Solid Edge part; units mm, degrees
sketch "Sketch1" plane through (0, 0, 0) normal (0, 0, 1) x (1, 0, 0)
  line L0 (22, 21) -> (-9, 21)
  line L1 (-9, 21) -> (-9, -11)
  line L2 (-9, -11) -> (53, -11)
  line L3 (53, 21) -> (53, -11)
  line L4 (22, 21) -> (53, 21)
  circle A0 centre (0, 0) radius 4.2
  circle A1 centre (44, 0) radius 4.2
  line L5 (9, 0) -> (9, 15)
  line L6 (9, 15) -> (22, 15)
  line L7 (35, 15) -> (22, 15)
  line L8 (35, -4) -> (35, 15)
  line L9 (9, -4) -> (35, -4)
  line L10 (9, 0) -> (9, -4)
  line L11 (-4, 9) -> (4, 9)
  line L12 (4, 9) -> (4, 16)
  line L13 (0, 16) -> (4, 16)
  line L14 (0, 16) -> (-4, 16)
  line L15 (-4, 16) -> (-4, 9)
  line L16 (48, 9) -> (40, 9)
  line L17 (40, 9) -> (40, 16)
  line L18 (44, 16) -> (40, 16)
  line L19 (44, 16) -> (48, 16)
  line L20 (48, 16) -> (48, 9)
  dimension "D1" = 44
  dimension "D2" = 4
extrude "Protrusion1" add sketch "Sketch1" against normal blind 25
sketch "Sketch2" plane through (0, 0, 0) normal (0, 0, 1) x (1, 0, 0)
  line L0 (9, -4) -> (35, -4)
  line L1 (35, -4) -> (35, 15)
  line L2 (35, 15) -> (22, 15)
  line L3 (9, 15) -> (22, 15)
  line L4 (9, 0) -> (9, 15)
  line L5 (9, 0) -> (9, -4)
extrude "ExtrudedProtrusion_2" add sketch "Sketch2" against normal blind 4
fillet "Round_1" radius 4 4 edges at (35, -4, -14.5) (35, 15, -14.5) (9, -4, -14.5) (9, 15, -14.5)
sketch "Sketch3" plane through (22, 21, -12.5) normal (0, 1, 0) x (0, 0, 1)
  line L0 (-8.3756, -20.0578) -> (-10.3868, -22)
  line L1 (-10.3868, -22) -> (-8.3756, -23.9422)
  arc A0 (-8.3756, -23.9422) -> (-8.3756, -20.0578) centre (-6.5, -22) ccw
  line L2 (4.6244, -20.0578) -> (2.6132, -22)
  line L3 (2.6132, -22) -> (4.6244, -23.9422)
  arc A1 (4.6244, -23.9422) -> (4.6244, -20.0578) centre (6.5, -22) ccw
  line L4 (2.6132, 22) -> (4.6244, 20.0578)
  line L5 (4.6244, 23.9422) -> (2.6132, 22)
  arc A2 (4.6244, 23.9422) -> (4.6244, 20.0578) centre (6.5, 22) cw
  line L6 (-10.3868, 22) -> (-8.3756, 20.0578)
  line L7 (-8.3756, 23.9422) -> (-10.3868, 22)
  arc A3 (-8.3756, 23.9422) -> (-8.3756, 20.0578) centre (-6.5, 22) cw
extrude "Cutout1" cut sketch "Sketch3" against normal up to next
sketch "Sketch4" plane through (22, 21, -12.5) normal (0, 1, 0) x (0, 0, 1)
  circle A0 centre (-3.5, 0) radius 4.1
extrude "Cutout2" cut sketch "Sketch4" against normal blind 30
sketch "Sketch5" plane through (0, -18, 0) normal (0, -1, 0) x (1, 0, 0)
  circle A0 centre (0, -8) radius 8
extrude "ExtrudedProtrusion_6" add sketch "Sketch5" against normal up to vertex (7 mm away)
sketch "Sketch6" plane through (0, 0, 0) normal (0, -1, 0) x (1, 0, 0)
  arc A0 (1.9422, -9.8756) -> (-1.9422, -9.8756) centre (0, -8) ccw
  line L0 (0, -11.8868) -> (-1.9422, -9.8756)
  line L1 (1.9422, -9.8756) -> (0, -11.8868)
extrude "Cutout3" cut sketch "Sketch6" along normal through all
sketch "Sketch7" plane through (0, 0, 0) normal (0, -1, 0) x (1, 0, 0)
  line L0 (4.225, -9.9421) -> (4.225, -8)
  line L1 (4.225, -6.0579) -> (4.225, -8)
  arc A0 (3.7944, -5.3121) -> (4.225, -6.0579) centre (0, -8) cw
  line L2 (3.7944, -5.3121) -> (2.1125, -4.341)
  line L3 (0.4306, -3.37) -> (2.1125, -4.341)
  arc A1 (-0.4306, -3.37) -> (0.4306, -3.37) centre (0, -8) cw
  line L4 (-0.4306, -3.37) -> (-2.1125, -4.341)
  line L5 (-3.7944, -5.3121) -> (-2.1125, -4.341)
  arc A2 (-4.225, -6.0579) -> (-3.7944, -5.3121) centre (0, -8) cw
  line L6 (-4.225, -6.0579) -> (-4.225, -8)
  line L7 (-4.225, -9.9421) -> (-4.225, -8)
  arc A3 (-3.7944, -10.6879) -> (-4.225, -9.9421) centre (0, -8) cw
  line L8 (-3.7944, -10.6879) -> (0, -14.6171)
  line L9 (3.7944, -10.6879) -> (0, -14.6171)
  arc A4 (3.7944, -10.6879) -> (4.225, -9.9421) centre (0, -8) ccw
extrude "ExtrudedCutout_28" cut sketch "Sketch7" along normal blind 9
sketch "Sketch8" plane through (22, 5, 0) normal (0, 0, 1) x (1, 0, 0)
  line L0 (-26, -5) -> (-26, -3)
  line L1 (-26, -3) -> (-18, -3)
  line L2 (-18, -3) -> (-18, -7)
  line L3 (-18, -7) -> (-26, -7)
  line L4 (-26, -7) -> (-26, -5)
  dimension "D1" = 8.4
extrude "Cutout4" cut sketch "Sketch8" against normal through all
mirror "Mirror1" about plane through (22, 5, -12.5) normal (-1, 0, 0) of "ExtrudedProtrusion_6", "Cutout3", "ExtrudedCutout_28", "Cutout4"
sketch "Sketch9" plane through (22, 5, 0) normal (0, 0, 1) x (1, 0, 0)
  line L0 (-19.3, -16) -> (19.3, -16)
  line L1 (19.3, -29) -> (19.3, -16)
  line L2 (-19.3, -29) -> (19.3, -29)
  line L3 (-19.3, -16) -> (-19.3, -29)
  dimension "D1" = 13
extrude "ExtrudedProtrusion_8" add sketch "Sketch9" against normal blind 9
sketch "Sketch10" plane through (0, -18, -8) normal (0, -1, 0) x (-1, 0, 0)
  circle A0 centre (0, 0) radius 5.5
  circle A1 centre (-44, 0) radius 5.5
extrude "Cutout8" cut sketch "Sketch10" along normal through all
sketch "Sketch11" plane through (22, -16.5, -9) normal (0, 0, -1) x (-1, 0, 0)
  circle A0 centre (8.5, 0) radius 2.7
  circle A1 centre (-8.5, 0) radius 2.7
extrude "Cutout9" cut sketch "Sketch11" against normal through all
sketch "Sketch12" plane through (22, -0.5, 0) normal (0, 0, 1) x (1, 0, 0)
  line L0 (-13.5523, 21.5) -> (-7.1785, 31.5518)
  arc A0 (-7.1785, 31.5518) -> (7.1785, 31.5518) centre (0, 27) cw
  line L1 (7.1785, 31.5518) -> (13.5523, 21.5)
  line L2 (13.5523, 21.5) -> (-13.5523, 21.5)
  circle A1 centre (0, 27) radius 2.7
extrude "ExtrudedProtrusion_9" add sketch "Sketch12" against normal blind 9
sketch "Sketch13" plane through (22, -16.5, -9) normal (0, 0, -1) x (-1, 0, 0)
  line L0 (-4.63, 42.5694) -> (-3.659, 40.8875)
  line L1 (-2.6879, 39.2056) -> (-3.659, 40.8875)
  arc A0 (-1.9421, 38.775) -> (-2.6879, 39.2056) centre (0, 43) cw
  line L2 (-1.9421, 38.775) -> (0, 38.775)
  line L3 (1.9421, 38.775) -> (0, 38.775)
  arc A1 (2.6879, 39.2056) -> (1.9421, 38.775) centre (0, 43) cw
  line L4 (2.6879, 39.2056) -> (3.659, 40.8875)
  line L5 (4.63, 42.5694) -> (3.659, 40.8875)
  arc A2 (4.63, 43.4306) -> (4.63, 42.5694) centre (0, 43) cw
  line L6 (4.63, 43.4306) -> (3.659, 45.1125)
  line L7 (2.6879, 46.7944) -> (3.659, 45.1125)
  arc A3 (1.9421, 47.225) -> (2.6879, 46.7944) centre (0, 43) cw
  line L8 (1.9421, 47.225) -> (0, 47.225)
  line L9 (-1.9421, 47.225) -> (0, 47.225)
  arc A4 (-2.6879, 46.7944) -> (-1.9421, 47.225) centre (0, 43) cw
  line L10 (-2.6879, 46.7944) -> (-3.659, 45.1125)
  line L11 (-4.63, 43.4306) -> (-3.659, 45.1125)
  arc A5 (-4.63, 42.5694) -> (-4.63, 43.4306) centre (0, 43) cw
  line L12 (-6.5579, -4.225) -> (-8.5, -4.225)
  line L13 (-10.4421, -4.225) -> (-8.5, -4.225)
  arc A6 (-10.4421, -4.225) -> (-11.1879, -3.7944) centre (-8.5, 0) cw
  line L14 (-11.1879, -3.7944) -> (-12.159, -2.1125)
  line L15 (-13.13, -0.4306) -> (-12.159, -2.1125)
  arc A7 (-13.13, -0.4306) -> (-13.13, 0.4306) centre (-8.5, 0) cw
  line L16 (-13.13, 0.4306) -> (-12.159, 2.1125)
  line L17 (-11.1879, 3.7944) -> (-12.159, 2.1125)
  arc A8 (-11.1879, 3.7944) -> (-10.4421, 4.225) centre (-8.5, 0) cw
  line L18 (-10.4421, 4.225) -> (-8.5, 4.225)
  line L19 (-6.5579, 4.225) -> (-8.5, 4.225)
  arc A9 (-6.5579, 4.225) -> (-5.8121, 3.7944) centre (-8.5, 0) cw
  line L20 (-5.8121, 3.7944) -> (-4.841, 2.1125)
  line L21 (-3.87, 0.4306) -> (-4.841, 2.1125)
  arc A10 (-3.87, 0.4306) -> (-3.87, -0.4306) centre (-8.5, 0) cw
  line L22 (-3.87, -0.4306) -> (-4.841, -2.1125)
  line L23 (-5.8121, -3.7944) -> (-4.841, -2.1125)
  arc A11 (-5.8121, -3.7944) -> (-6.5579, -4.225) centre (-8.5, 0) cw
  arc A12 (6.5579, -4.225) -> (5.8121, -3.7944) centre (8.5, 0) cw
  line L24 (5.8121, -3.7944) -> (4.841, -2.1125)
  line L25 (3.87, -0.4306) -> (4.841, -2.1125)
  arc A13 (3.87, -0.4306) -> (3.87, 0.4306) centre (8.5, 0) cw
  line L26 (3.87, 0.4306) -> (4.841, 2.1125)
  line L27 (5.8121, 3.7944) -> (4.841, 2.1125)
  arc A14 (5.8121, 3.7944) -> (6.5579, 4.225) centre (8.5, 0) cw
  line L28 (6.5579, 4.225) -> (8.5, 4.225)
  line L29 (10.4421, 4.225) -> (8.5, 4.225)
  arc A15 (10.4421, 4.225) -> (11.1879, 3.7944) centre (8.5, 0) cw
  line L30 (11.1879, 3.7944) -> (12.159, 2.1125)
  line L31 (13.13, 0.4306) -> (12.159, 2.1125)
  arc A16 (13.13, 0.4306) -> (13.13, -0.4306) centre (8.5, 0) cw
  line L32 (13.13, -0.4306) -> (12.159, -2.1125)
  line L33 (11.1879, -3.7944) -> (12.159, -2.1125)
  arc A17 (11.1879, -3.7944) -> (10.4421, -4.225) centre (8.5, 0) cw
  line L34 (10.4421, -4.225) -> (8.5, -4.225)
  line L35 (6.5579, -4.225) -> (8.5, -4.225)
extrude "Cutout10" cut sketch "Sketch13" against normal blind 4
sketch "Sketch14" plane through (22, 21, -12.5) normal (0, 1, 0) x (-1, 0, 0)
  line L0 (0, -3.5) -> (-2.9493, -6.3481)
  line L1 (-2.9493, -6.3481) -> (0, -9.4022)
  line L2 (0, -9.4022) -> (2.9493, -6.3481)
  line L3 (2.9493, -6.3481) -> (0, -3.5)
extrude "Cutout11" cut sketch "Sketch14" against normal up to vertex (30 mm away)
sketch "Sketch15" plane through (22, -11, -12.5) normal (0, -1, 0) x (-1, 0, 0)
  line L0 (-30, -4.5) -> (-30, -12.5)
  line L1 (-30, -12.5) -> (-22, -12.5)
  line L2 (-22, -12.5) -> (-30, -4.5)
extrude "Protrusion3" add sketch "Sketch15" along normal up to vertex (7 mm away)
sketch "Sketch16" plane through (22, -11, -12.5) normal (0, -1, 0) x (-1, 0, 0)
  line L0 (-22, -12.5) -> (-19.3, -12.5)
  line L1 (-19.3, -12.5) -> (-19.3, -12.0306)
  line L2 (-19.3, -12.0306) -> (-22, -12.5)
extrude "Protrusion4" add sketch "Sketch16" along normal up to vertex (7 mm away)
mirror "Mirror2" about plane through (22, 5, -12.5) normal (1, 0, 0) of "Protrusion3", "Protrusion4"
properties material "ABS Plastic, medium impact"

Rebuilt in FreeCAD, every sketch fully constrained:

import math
import FreeCAD as App
import Part
import Sketcher
from FreeCAD import Vector
Q = App.Units.Quantity


def edges_at(feature, points):
    """Names of the edges that pass closest to the given points."""
    edges = feature.Shape.Edges
    near = lambda p: min(range(len(edges)), key=lambda i: edges[i].distToShape(Part.Vertex(*p))[0])
    return sorted({f"Edge{near(p) + 1}" for p in points})


def add_polygon(sketch, points):
    """Adds a closed chain of lines whose ends are joined by coincident constraints."""
    first, n = sketch.GeometryCount, len(points)
    for a, b in zip(points, points[1:] + points[:1]):
        sketch.addGeometry(Part.LineSegment(App.Vector(*a, 0), App.Vector(*b, 0)), False)
    for i in range(n):
        sketch.addConstraint(Sketcher.Constraint("Coincident", first + i, 2, first + (i + 1) % n, 1))

doc = App.newDocument("Part")
body = doc.addObject("PartDesign::Body", "Body")

sketch1 = body.newObject("Sketcher::SketchObject", "Sketch")
sketch1.AttachmentSupport = (doc.getObject("XY_Plane"), [""])
sketch1.MapMode = "FlatFace"
add_polygon(sketch1, [(53, 21), (-9, 21), (-9, -11), (53, -11)])
sketch1.addGeometry(Part.Circle(Vector(0, 0, 0), Vector(0, 0, 1), 4.2), False)
sketch1.addGeometry(Part.Circle(Vector(44, 0, 0), Vector(0, 0, 1), 4.2), False)
add_polygon(sketch1, [(4, 9), (-4, 9), (-4, 16), (4, 16)])
add_polygon(sketch1, [(9, -4), (9, 15), (35, 15), (35, -4)])
add_polygon(sketch1, [(48, 16), (48, 9), (40, 9), (40, 16)])
sketch1.addConstraint([
    Sketcher.Constraint("Horizontal", 0),
    Sketcher.Constraint("Vertical", 1),
    Sketcher.Constraint("Horizontal", 2),
    Sketcher.Constraint("Vertical", 3),
    Sketcher.Constraint("Horizontal", 6),
    Sketcher.Constraint("Vertical", 7),
    Sketcher.Constraint("Horizontal", 8),
    Sketcher.Constraint("Vertical", 9),
    Sketcher.Constraint("Vertical", 10),
    Sketcher.Constraint("Horizontal", 11),
    Sketcher.Constraint("Vertical", 12),
    Sketcher.Constraint("Horizontal", 13),
    Sketcher.Constraint("Vertical", 14),
    Sketcher.Constraint("Horizontal", 15),
    Sketcher.Constraint("Vertical", 16),
    Sketcher.Constraint("Horizontal", 17),
    Sketcher.Constraint("Coincident", 4, 3, -1, 1),
    Sketcher.Constraint("Equal", 4, 5),
    Sketcher.Constraint("PointOnObject", 5, 3, -1),
    Sketcher.Constraint("Horizontal", 9, 2, 14, 2),
    Sketcher.Constraint("Horizontal", 8, 2, 16, 2),
    Sketcher.Constraint("Equal", 8, 15),
    Sketcher.Constraint("Diameter", 4, 8.4),
    Sketcher.Constraint("DistanceX", 0, 2, 0, 1, 62.0),
    Sketcher.Constraint("DistanceX", 6, 2, 6, 1, 8.0),
    Sketcher.Constraint("DistanceX", 11, 1, 11, 2, 26.0),
    Sketcher.Constraint("DistanceY", 1, 2, 1, 1, 32.0),
    Sketcher.Constraint("DistanceY", 7, 1, 7, 2, 7.0),
    Sketcher.Constraint("DistanceY", 10, 1, 10, 2, 19.0),
    Sketcher.Constraint("DistanceX", -1, 1, 5, 3, 44.0),
    Sketcher.Constraint("DistanceX", 0, 2, -1, 1, 9.0),
    Sketcher.Constraint("DistanceY", -1, 1, 0, 2, 21.0),
    Sketcher.Constraint("DistanceX", 6, 2, -1, 1, 4.0),
    Sketcher.Constraint("DistanceY", -1, 1, 6, 2, 9.0),
    Sketcher.Constraint("DistanceX", -1, 1, 10, 2, 9.0),
    Sketcher.Constraint("DistanceY", -1, 1, 10, 2, 15.0),
    Sketcher.Constraint("DistanceX", -1, 1, 14, 2, 48.0),
])
pad1 = body.newObject("PartDesign::Pad", "Pad")
pad1.Profile = sketch1
pad1.Length = 25
pad1.Reversed = True

sketch2 = body.newObject("Sketcher::SketchObject", "Sketch001")
sketch2.AttachmentSupport = (doc.getObject("XY_Plane"), [""])
sketch2.MapMode = "FlatFace"
add_polygon(sketch2, [(9, 15), (9, -4), (35, -4), (35, 15)])
sketch2.addConstraint([
    Sketcher.Constraint("Vertical", 0),
    Sketcher.Constraint("Horizontal", 1),
    Sketcher.Constraint("Vertical", 2),
    Sketcher.Constraint("Horizontal", 3),
    Sketcher.Constraint("DistanceX", 1, 1, 1, 2, 26.0),
    Sketcher.Constraint("DistanceY", 0, 2, 0, 1, 19.0),
    Sketcher.Constraint("DistanceX", -1, 1, 0, 2, 9.0),
    Sketcher.Constraint("DistanceY", 0, 2, -1, 1, 4.0),
])
pad2 = body.newObject("PartDesign::Pad", "Pad001")
pad2.Profile = sketch2
pad2.Length = 4
pad2.Reversed = True
doc.recompute()

fillet = body.newObject("PartDesign::Fillet", "Fillet")
fillet.Base = (pad2, edges_at(pad2, [
    (35, -4, -14.5),
    (35, 15, -14.5),
    (9, -4, -14.5),
    (9, 15, -14.5),
]))
fillet.Radius = 4

sketch3 = body.newObject("Sketcher::SketchObject", "Sketch002")
sketch3.AttachmentSupport = (doc.getObject("XZ_Plane"), [""])
sketch3.MapMode = "FlatFace"
sketch3.AttachmentOffset = App.Placement(Vector(0, 0, -21), App.Rotation())
sketch3.addGeometry([
    Part.ArcOfCircle(Part.Circle(Vector(0, -19, 0), Vector(0, 0, 1), 2.700003), math.radians(-44.000599), math.radians(224.000599)),
    Part.LineSegment(Vector(1.9422, -20.8756, 0), Vector(0, -22.8868, 0)),
    Part.LineSegment(Vector(0, -22.8868, 0), Vector(-1.9422, -20.8756, 0)),
    Part.ArcOfCircle(Part.Circle(Vector(0, -6, 0), Vector(0, 0, 1), 2.700003), math.radians(-44.000599), math.radians(224.000599)),
    Part.LineSegment(Vector(1.9422, -7.8756, 0), Vector(0, -9.8868, 0)),
    Part.LineSegment(Vector(0, -9.8868, 0), Vector(-1.9422, -7.8756, 0)),
    Part.LineSegment(Vector(45.9422, -7.8756, 0), Vector(44, -9.8868, 0)),
    Part.LineSegment(Vector(44, -9.8868, 0), Vector(42.0578, -7.8756, 0)),
    Part.ArcOfCircle(Part.Circle(Vector(44, -6, 0), Vector(0, 0, 1), 2.700003), math.radians(-44.000599), math.radians(224.000599)),
    Part.LineSegment(Vector(45.9422, -20.8756, 0), Vector(44, -22.8868, 0)),
    Part.LineSegment(Vector(44, -22.8868, 0), Vector(42.0578, -20.8756, 0)),
    Part.ArcOfCircle(Part.Circle(Vector(44, -19, 0), Vector(0, 0, 1), 2.700003), math.radians(-44.000599), math.radians(224.000599)),
], False)
sketch3.addConstraint([
    Sketcher.Constraint("Tangent", 0, 1, 1, 1),
    Sketcher.Constraint("Coincident", 1, 2, 2, 1),
    Sketcher.Constraint("Tangent", 2, 2, 0, 2),
    Sketcher.Constraint("Tangent", 3, 1, 4, 1),
    Sketcher.Constraint("Coincident", 4, 2, 5, 1),
    Sketcher.Constraint("Tangent", 5, 2, 3, 2),
    Sketcher.Constraint("Coincident", 6, 2, 7, 1),
    Sketcher.Constraint("Tangent", 7, 2, 8, 2),
    Sketcher.Constraint("Tangent", 8, 1, 6, 1),
    Sketcher.Constraint("Coincident", 9, 2, 10, 1),
    Sketcher.Constraint("Tangent", 10, 2, 11, 2),
    Sketcher.Constraint("Tangent", 11, 1, 9, 1),
    Sketcher.Constraint("Equal", 0, 3),
    Sketcher.Constraint("Equal", 3, 8),
    Sketcher.Constraint("Equal", 8, 11),
    Sketcher.Constraint("Symmetric", 0, 1, 2, 2, -2),
    Sketcher.Constraint("Symmetric", 3, 1, 5, 2, -2),
    Sketcher.Constraint("Parallel", 1, 4),
    Sketcher.Constraint("Parallel", 4, 6),
    Sketcher.Constraint("Parallel", 5, 7),
    Sketcher.Constraint("Parallel", 6, 9),
    Sketcher.Constraint("Parallel", 7, 10),
    Sketcher.Constraint("Horizontal", 3, 3, 8, 3),
    Sketcher.Constraint("Horizontal", 0, 3, 11, 3),
    Sketcher.Constraint("Vertical", 8, 3, 11, 3),
    Sketcher.Constraint("Radius", 0, 2.7),
    Sketcher.Constraint("Angle", 1, Q("-134 deg")),
    Sketcher.Constraint("DistanceY", 0, 3, -1, 1, 19.0),
    Sketcher.Constraint("DistanceY", 3, 3, -1, 1, 6.0),
    Sketcher.Constraint("DistanceX", -1, 1, 8, 3, 44.0),
])
pocket1 = body.newObject("PartDesign::Pocket", "Pocket")
pocket1.Profile = sketch3
pocket1.Type = "UpToFirst"
pocket1.Reversed = True

sketch4 = body.newObject("Sketcher::SketchObject", "Sketch003")
sketch4.AttachmentSupport = (doc.getObject("XZ_Plane"), [""])
sketch4.MapMode = "FlatFace"
sketch4.AttachmentOffset = App.Placement(Vector(0, 0, -21), App.Rotation())
sketch4.addGeometry(Part.Circle(Vector(22, -16, 0), Vector(0, 0, 1), 4.1), False)
sketch4.addConstraint([
    Sketcher.Constraint("Diameter", 0, 8.2),
    Sketcher.Constraint("DistanceX", -1, 1, 0, 3, 22.0),
    Sketcher.Constraint("DistanceY", 0, 3, -1, 1, 16.0),
])
pocket2 = body.newObject("PartDesign::Pocket", "Pocket001")
pocket2.Profile = sketch4
pocket2.Length = 30
pocket2.Reversed = True

sketch5 = body.newObject("Sketcher::SketchObject", "Sketch004")
sketch5.AttachmentSupport = (doc.getObject("XZ_Plane"), [""])
sketch5.MapMode = "FlatFace"
sketch5.AttachmentOffset = App.Placement(Vector(0, 0, 18), App.Rotation())
sketch5.addGeometry(Part.Circle(Vector(0, -8, 0), Vector(0, 0, 1), 8), False)
sketch5.addConstraint([
    Sketcher.Constraint("PointOnObject", 0, 3, -2),
    Sketcher.Constraint("Diameter", 0, 16.0),
    Sketcher.Constraint("DistanceY", 0, 3, -1, 1, 8.0),
])
pad3 = body.newObject("PartDesign::Pad", "Pad002")
pad3.Profile = sketch5
pad3.Length = 7
pad3.Reversed = True

sketch6 = body.newObject("Sketcher::SketchObject", "Sketch005")
sketch6.AttachmentSupport = (doc.getObject("XZ_Plane"), [""])
sketch6.MapMode = "FlatFace"
sketch6.addGeometry([
    Part.LineSegment(Vector(0, -11.8868, 0), Vector(1.9422, -9.8756, 0)),
    Part.ArcOfCircle(Part.Circle(Vector(0, -8, 0), Vector(0, 0, 1), 2.700003), math.radians(-44.000599), math.radians(224.000599)),
    Part.LineSegment(Vector(-1.9422, -9.8756, 0), Vector(0, -11.8868, 0)),
], False)
sketch6.addConstraint([
    Sketcher.Constraint("Tangent", 0, 2, 1, 1),
    Sketcher.Constraint("Tangent", 1, 2, 2, 1),
    Sketcher.Constraint("Coincident", 2, 2, 0, 1),
    Sketcher.Constraint("Symmetric", 0, 2, 1, 2, -2),
    Sketcher.Constraint("Radius", 1, 2.7),
    Sketcher.Constraint("Angle", 0, Q("46 deg")),
    Sketcher.Constraint("DistanceY", 1, 3, -1, 1, 8.0),
])
pocket3 = body.newObject("PartDesign::Pocket", "Pocket002")
pocket3.Profile = sketch6
pocket3.Type = "ThroughAll"
pocket3.Reversed = True

sketch7 = body.newObject("Sketcher::SketchObject", "Sketch006")
sketch7.AttachmentSupport = (doc.getObject("XZ_Plane"), [""])
sketch7.MapMode = "FlatFace"
sketch7.addGeometry([
    Part.ArcOfCircle(Part.Circle(Vector(-0.001051, -7.999326, 0), Vector(0, 0, 1), 4.651223), math.radians(-35.312512), math.radians(-24.688891)),
    Part.LineSegment(Vector(4.225, -9.9421, 0), Vector(4.225, -6.0579, 0)),
    Part.ArcOfCircle(Part.Circle(Vector(-0.001051, -8.000674, 0), Vector(0, 0, 1), 4.651223), math.radians(24.688891), math.radians(35.312512)),
    Part.LineSegment(Vector(3.7944, -5.3121, 0), Vector(2.1125, -4.341, 0)),
    Part.LineSegment(Vector(2.1125, -4.341, 0), Vector(0.4306, -3.37, 0)),
    Part.ArcOfCircle(Part.Circle(Vector(0, -8, 0), Vector(0, 0, 1), 4.64998), math.radians(84.686653), math.radians(95.313347)),
    Part.LineSegment(Vector(-0.4306, -3.37, 0), Vector(-2.1125, -4.341, 0)),
    Part.LineSegment(Vector(-2.1125, -4.341, 0), Vector(-3.7944, -5.3121, 0)),
    Part.ArcOfCircle(Part.Circle(Vector(-0.001108, -7.999427, 0), Vector(0, 0, 1), 4.64874), math.radians(144.684643), math.radians(155.313954)),
    Part.LineSegment(Vector(-4.225, -6.0579, 0), Vector(-4.225, -9.9421, 0)),
    Part.ArcOfCircle(Part.Circle(Vector(0.001051, -7.999326, 0), Vector(0, 0, 1), 4.651223), math.radians(-155.311109), math.radians(-144.687488)),
    Part.LineSegment(Vector(-3.7944, -10.6879, 0), Vector(0, -14.6171, 0)),
    Part.LineSegment(Vector(0, -14.6171, 0), Vector(3.7944, -10.6879, 0)),
], False)
sketch7.addConstraint([
    Sketcher.Constraint("Coincident", 0, 2, 1, 1),
    Sketcher.Constraint("Coincident", 1, 2, 2, 1),
    Sketcher.Constraint("Coincident", 2, 2, 3, 1),
    Sketcher.Constraint("Coincident", 3, 2, 4, 1),
    Sketcher.Constraint("Coincident", 4, 2, 5, 1),
    Sketcher.Constraint("Coincident", 5, 2, 6, 1),
    Sketcher.Constraint("Coincident", 6, 2, 7, 1),
    Sketcher.Constraint("Coincident", 7, 2, 8, 1),
    Sketcher.Constraint("Coincident", 8, 2, 9, 1),
    Sketcher.Constraint("Coincident", 9, 2, 10, 1),
    Sketcher.Constraint("Coincident", 10, 2, 11, 1),
    Sketcher.Constraint("Coincident", 11, 2, 12, 1),
    Sketcher.Constraint("Coincident", 12, 2, 0, 1),
    Sketcher.Constraint("Vertical", 1),
    Sketcher.Constraint("Vertical", 9),
    Sketcher.Constraint("Coincident", 8, 3, 0, 3),
    Sketcher.Constraint("Equal", 0, 2),
    Sketcher.Constraint("Equal", 2, 10),
    Sketcher.Constraint("Symmetric", 0, 3, 10, 3, -2),
    Sketcher.Constraint("Symmetric", 4, 2, 5, 2, -2),
    Sketcher.Constraint("Symmetric", 3, 2, 6, 2, -2),
    Sketcher.Constraint("Symmetric", 2, 2, 7, 2, -2),
    Sketcher.Constraint("Symmetric", 1, 2, 8, 2, -2),
    Sketcher.Constraint("PointOnObject", 11, 2, -2),
    Sketcher.Constraint("Parallel", 3, 4),
    Sketcher.Constraint("Horizontal", 10, 2, 12, 2),
    Sketcher.Constraint("Vertical", 0, 3, 2, 3),
    Sketcher.Constraint("Vertical", 7, 2, 10, 2),
    Sketcher.Constraint("Equal", 3, 4),
    Sketcher.Constraint("Angle", 4, Q("150.0012 deg")),
    Sketcher.Constraint("Angle", 11, Q("-46 deg")),
    Sketcher.Constraint("Radius", 5, 4.65),
    Sketcher.Constraint("DistanceY", 5, 3, -1, 1, 8.0),
    Sketcher.Constraint("Radius", 0, 4.6512),
    Sketcher.Constraint("Radius", 8, 4.6487),
    Sketcher.Constraint("DistanceY", 4, 2, -1, 1, 3.37),
    Sketcher.Constraint("DistanceY", 0, 2, 2, 2, 4.63),
    Sketcher.Constraint("Distance", 3, 1.942),
])
pocket4 = body.newObject("PartDesign::Pocket", "Pocket003")
pocket4.Profile = sketch7
pocket4.Length = 9
pocket4.Reversed = True

sketch8 = body.newObject("Sketcher::SketchObject", "Sketch007")
sketch8.AttachmentSupport = (doc.getObject("XY_Plane"), [""])
sketch8.MapMode = "FlatFace"
add_polygon(sketch8, [(-4, 2), (-4, -2), (4, -2), (4, 2)])
sketch8.addConstraint([
    Sketcher.Constraint("Vertical", 0),
    Sketcher.Constraint("Horizontal", 1),
    Sketcher.Constraint("Vertical", 2),
    Sketcher.Constraint("Horizontal", 3),
    Sketcher.Constraint("Symmetric", 0, 2, 2, 2, -1, 1),
    Sketcher.Constraint("DistanceX", 1, 1, 1, 2, 8.0),
    Sketcher.Constraint("DistanceY", 0, 2, 0, 1, 4.0),
])
pocket5 = body.newObject("PartDesign::Pocket", "Pocket004")
pocket5.Profile = sketch8
pocket5.Type = "ThroughAll"
doc.recompute()

datumplane = body.newObject("PartDesign::Plane", "DatumPlane")
datumplane.AttachmentSupport = (doc.getObject("YZ_Plane"), [""])
datumplane.MapMode = "FlatFace"
datumplane.AttachmentOffset = App.Placement(Vector(0, 0, 22), App.Rotation())
mirrored = body.newObject("PartDesign::Mirrored", "Mirrored")
mirrored.Originals = [pad3, pocket3, pocket4, pocket5]
mirrored.MirrorPlane = (datumplane, [""])
body.Tip = mirrored

sketch9 = body.newObject("Sketcher::SketchObject", "Sketch008")
sketch9.AttachmentSupport = (doc.getObject("XY_Plane"), [""])
sketch9.MapMode = "FlatFace"
add_polygon(sketch9, [(41.3, -11), (2.7, -11), (2.7, -24), (41.3, -24)])
sketch9.addConstraint([
    Sketcher.Constraint("Horizontal", 0),
    Sketcher.Constraint("Vertical", 1),
    Sketcher.Constraint("Horizontal", 2),
    Sketcher.Constraint("Vertical", 3),
    Sketcher.Constraint("DistanceY", 1, 2, 1, 1, 13.0),
    Sketcher.Constraint("DistanceX", 0, 2, 0, 1, 38.6),
    Sketcher.Constraint("DistanceY", 0, 2, -1, 1, 11.0),
    Sketcher.Constraint("DistanceX", -1, 1, 0, 2, 2.7),
])
pad4 = body.newObject("PartDesign::Pad", "Pad003")
pad4.Profile = sketch9
pad4.Length = 9
pad4.Reversed = True

sketch10 = body.newObject("Sketcher::SketchObject", "Sketch009")
sketch10.AttachmentSupport = (doc.getObject("XZ_Plane"), [""])
sketch10.MapMode = "FlatFace"
sketch10.AttachmentOffset = App.Placement(Vector(0, 0, 18), App.Rotation())
sketch10.addGeometry([
    Part.Circle(Vector(0, -8, 0), Vector(0, 0, 1), 5.5),
    Part.Circle(Vector(44, -8, 0), Vector(0, 0, 1), 5.5),
], False)
sketch10.addConstraint([
    Sketcher.Constraint("Equal", 0, 1),
    Sketcher.Constraint("PointOnObject", 0, 3, -2),
    Sketcher.Constraint("Horizontal", 0, 3, 1, 3),
    Sketcher.Constraint("Diameter", 0, 11.0),
    Sketcher.Constraint("DistanceY", 0, 3, -1, 1, 8.0),
    Sketcher.Constraint("DistanceX", -1, 1, 1, 3, 44.0),
])
pocket6 = body.newObject("PartDesign::Pocket", "Pocket005")
pocket6.Profile = sketch10
pocket6.Type = "ThroughAll"
pocket6.Reversed = True

sketch11 = body.newObject("Sketcher::SketchObject", "Sketch010")
sketch11.AttachmentSupport = (doc.getObject("XY_Plane"), [""])
sketch11.MapMode = "FlatFace"
sketch11.AttachmentOffset = App.Placement(Vector(0, 0, -9), App.Rotation())
sketch11.addGeometry([
    Part.Circle(Vector(13.5, -16.5, 0), Vector(0, 0, 1), 2.7),
    Part.Circle(Vector(30.5, -16.5, 0), Vector(0, 0, 1), 2.7),
], False)
sketch11.addConstraint([
    Sketcher.Constraint("Equal", 0, 1),
    Sketcher.Constraint("Horizontal", 0, 3, 1, 3),
    Sketcher.Constraint("Diameter", 0, 5.4),
    Sketcher.Constraint("DistanceX", 0, 3, 1, 3, 17.0),
    Sketcher.Constraint("DistanceX", -1, 1, 0, 3, 13.5),
    Sketcher.Constraint("DistanceY", 0, 3, -1, 1, 16.5),
])
pocket7 = body.newObject("PartDesign::Pocket", "Pocket006")
pocket7.Profile = sketch11
pocket7.Type = "ThroughAll"
pocket7.Reversed = True

sketch12 = body.newObject("Sketcher::SketchObject", "Sketch011")
sketch12.AttachmentSupport = (doc.getObject("XY_Plane"), [""])
sketch12.MapMode = "FlatFace"
sketch12.addGeometry([
    Part.LineSegment(Vector(14.8215, 31.0518, 0), Vector(8.4477, 21, 0)),
    Part.LineSegment(Vector(8.4477, 21, 0), Vector(35.5523, 21, 0)),
    Part.LineSegment(Vector(35.5523, 21, 0), Vector(29.1785, 31.0518, 0)),
    Part.ArcOfCircle(Part.Circle(Vector(22, 26.5, 0), Vector(0, 0, 1), 8.499985), math.radians(32.37829), math.radians(147.62171)),
    Part.Circle(Vector(22, 26.5, 0), Vector(0, 0, 1), 2.7),
], False)
sketch12.addConstraint([
    Sketcher.Constraint("Coincident", 0, 2, 1, 1),
    Sketcher.Constraint("Coincident", 1, 2, 2, 1),
    Sketcher.Constraint("Tangent", 2, 2, 3, 1),
    Sketcher.Constraint("Tangent", 3, 2, 0, 1),
    Sketcher.Constraint("Horizontal", 1),
    Sketcher.Constraint("Coincident", 4, 3, 3, 3),
    Sketcher.Constraint("Horizontal", 2, 2, 3, 2),
    Sketcher.Constraint("Diameter", 4, 5.4),
    Sketcher.Constraint("Radius", 3, 8.5),
    Sketcher.Constraint("DistanceX", -1, 1, 3, 3, 22.0),
    Sketcher.Constraint("DistanceY", -1, 1, 0, 2, 21.0),
    Sketcher.Constraint("DistanceY", -1, 1, 3, 3, 26.5),
    Sketcher.Constraint("DistanceX", 1, 1, 1, 2, 27.1046),
])
pad5 = body.newObject("PartDesign::Pad", "Pad004")
pad5.Profile = sketch12
pad5.Length = 9
pad5.Reversed = True

sketch13 = body.newObject("Sketcher::SketchObject", "Sketch012")
sketch13.AttachmentSupport = (doc.getObject("XY_Plane"), [""])
sketch13.MapMode = "FlatFace"
sketch13.AttachmentOffset = App.Placement(Vector(0, 0, -9), App.Rotation())
sketch13.addGeometry([
    Part.ArcOfCircle(Part.Circle(Vector(22, 26.5, 0), Vector(0, 0, 1), 4.64998), math.radians(-5.313347), math.radians(5.313347)),
    Part.LineSegment(Vector(26.63, 26.0694, 0), Vector(25.659, 24.3875, 0)),
    Part.LineSegment(Vector(25.659, 24.3875, 0), Vector(24.6879, 22.7056, 0)),
    Part.ArcOfCircle(Part.Circle(Vector(22.000573, 26.498892, 0), Vector(0, 0, 1), 4.64874), math.radians(-65.313954), math.radians(-54.684643)),
    Part.LineSegment(Vector(23.9421, 22.275, 0), Vector(20.0579, 22.275, 0)),
    Part.ArcOfCircle(Part.Circle(Vector(22.000674, 26.501051, 0), Vector(0, 0, 1), 4.651223), math.radians(-125.312512), math.radians(-114.688891)),
    Part.LineSegment(Vector(19.3121, 22.7056, 0), Vector(18.341, 24.3875, 0)),
    Part.LineSegment(Vector(18.341, 24.3875, 0), Vector(17.37, 26.0694, 0)),
    Part.ArcOfCircle(Part.Circle(Vector(22, 26.5, 0), Vector(0, 0, 1), 4.64998), math.radians(174.686653), math.radians(185.313347)),
    Part.LineSegment(Vector(17.37, 26.9306, 0), Vector(18.341, 28.6125, 0)),
    Part.LineSegment(Vector(18.341, 28.6125, 0), Vector(19.3121, 30.2944, 0)),
    Part.ArcOfCircle(Part.Circle(Vector(21.999427, 26.501108, 0), Vector(0, 0, 1), 4.64874), math.radians(114.686046), math.radians(125.315357)),
    Part.LineSegment(Vector(20.0579, 30.725, 0), Vector(23.9421, 30.725, 0)),
    Part.ArcOfCircle(Part.Circle(Vector(21.999326, 26.498949, 0), Vector(0, 0, 1), 4.651223), math.radians(54.687488), math.radians(65.311109)),
    Part.LineSegment(Vector(24.6879, 30.2944, 0), Vector(25.659, 28.6125, 0)),
    Part.LineSegment(Vector(25.659, 28.6125, 0), Vector(26.63, 26.9306, 0)),
    Part.LineSegment(Vector(32.4421, -20.725, 0), Vector(28.5579, -20.725, 0)),
    Part.ArcOfCircle(Part.Circle(Vector(30.500674, -16.498949, 0), Vector(0, 0, 1), 4.651223), math.radians(-125.312512), math.radians(-114.688891)),
    Part.LineSegment(Vector(27.8121, -20.2944, 0), Vector(26.841, -18.6125, 0)),
    Part.LineSegment(Vector(26.841, -18.6125, 0), Vector(25.87, -16.9306, 0)),
    Part.ArcOfCircle(Part.Circle(Vector(30.5, -16.5, 0), Vector(0, 0, 1), 4.64998), math.radians(174.686653), math.radians(185.313347)),
    Part.LineSegment(Vector(25.87, -16.0694, 0), Vector(26.841, -14.3875, 0)),
    Part.LineSegment(Vector(26.841, -14.3875, 0), Vector(27.8121, -12.7056, 0)),
    Part.ArcOfCircle(Part.Circle(Vector(30.499427, -16.498892, 0), Vector(0, 0, 1), 4.64874), math.radians(114.686046), math.radians(125.315357)),
    Part.LineSegment(Vector(28.5579, -12.275, 0), Vector(32.4421, -12.275, 0)),
    Part.ArcOfCircle(Part.Circle(Vector(30.499326, -16.501051, 0), Vector(0, 0, 1), 4.651223), math.radians(54.687488), math.radians(65.311109)),
    Part.LineSegment(Vector(33.1879, -12.7056, 0), Vector(34.159, -14.3875, 0)),
    Part.LineSegment(Vector(34.159, -14.3875, 0), Vector(35.13, -16.0694, 0)),
    Part.ArcOfCircle(Part.Circle(Vector(30.5, -16.5, 0), Vector(0, 0, 1), 4.64998), math.radians(-5.313347), math.radians(5.313347)),
    Part.LineSegment(Vector(35.13, -16.9306, 0), Vector(34.159, -18.6125, 0)),
    Part.LineSegment(Vector(34.159, -18.6125, 0), Vector(33.1879, -20.2944, 0)),
    Part.ArcOfCircle(Part.Circle(Vector(30.500573, -16.501108, 0), Vector(0, 0, 1), 4.64874), math.radians(-65.313954), math.radians(-54.684643)),
    Part.ArcOfCircle(Part.Circle(Vector(13.500573, -16.501108, 0), Vector(0, 0, 1), 4.64874), math.radians(-65.313954), math.radians(-54.684643)),
    Part.LineSegment(Vector(15.4421, -20.725, 0), Vector(11.5579, -20.725, 0)),
    Part.ArcOfCircle(Part.Circle(Vector(13.500674, -16.498949, 0), Vector(0, 0, 1), 4.651223), math.radians(-125.312512), math.radians(-114.688891)),
    Part.LineSegment(Vector(10.8121, -20.2944, 0), Vector(9.841, -18.6125, 0)),
    Part.LineSegment(Vector(9.841, -18.6125, 0), Vector(8.87, -16.9306, 0)),
    Part.ArcOfCircle(Part.Circle(Vector(13.5, -16.5, 0), Vector(0, 0, 1), 4.64998), math.radians(174.686653), math.radians(185.313347)),
    Part.LineSegment(Vector(8.87, -16.0694, 0), Vector(9.841, -14.3875, 0)),
    Part.LineSegment(Vector(9.841, -14.3875, 0), Vector(10.8121, -12.7056, 0)),
    Part.ArcOfCircle(Part.Circle(Vector(13.499427, -16.498892, 0), Vector(0, 0, 1), 4.64874), math.radians(114.686046), math.radians(125.315357)),
    Part.LineSegment(Vector(11.5579, -12.275, 0), Vector(15.4421, -12.275, 0)),
    Part.ArcOfCircle(Part.Circle(Vector(13.499326, -16.501051, 0), Vector(0, 0, 1), 4.651223), math.radians(54.687488), math.radians(65.311109)),
    Part.LineSegment(Vector(16.1879, -12.7056, 0), Vector(17.159, -14.3875, 0)),
    Part.LineSegment(Vector(17.159, -14.3875, 0), Vector(18.13, -16.0694, 0)),
    Part.ArcOfCircle(Part.Circle(Vector(13.5, -16.5, 0), Vector(0, 0, 1), 4.64998), math.radians(-5.313347), math.radians(5.313347)),
    Part.LineSegment(Vector(18.13, -16.9306, 0), Vector(17.159, -18.6125, 0)),
    Part.LineSegment(Vector(17.159, -18.6125, 0), Vector(16.1879, -20.2944, 0)),
], False)
sketch13.addConstraint([
    Sketcher.Constraint("Coincident", 0, 1, 1, 1),
    Sketcher.Constraint("Coincident", 1, 2, 2, 1),
    Sketcher.Constraint("Coincident", 2, 2, 3, 2),
    Sketcher.Constraint("Coincident", 3, 1, 4, 1),
    Sketcher.Constraint("Coincident", 4, 2, 5, 2),
    Sketcher.Constraint("Coincident", 5, 1, 6, 1),
    Sketcher.Constraint("Coincident", 6, 2, 7, 1),
    Sketcher.Constraint("Coincident", 7, 2, 8, 2),
    Sketcher.Constraint("Coincident", 8, 1, 9, 1),
    Sketcher.Constraint("Coincident", 9, 2, 10, 1),
    Sketcher.Constraint("Coincident", 10, 2, 11, 2),
    Sketcher.Constraint("Coincident", 11, 1, 12, 1),
    Sketcher.Constraint("Coincident", 12, 2, 13, 2),
    Sketcher.Constraint("Coincident", 13, 1, 14, 1),
    Sketcher.Constraint("Coincident", 14, 2, 15, 1),
    Sketcher.Constraint("Coincident", 15, 2, 0, 2),
    Sketcher.Constraint("Coincident", 16, 2, 17, 2),
    Sketcher.Constraint("Coincident", 17, 1, 18, 1),
    Sketcher.Constraint("Coincident", 18, 2, 19, 1),
    Sketcher.Constraint("Coincident", 19, 2, 20, 2),
    Sketcher.Constraint("Coincident", 20, 1, 21, 1),
    Sketcher.Constraint("Coincident", 21, 2, 22, 1),
    Sketcher.Constraint("Coincident", 22, 2, 23, 2),
    Sketcher.Constraint("Coincident", 23, 1, 24, 1),
    Sketcher.Constraint("Coincident", 24, 2, 25, 2),
    Sketcher.Constraint("Coincident", 25, 1, 26, 1),
    Sketcher.Constraint("Coincident", 26, 2, 27, 1),
    Sketcher.Constraint("Coincident", 27, 2, 28, 2),
    Sketcher.Constraint("Coincident", 28, 1, 29, 1),
    Sketcher.Constraint("Coincident", 29, 2, 30, 1),
    Sketcher.Constraint("Coincident", 30, 2, 31, 2),
    Sketcher.Constraint("Coincident", 31, 1, 16, 1),
    Sketcher.Constraint("Coincident", 32, 1, 33, 1),
    Sketcher.Constraint("Coincident", 33, 2, 34, 2),
    Sketcher.Constraint("Coincident", 34, 1, 35, 1),
    Sketcher.Constraint("Coincident", 35, 2, 36, 1),
    Sketcher.Constraint("Coincident", 36, 2, 37, 2),
    Sketcher.Constraint("Coincident", 37, 1, 38, 1),
    Sketcher.Constraint("Coincident", 38, 2, 39, 1),
    Sketcher.Constraint("Coincident", 39, 2, 40, 2),
    Sketcher.Constraint("Coincident", 40, 1, 41, 1),
    Sketcher.Constraint("Coincident", 41, 2, 42, 2),
    Sketcher.Constraint("Coincident", 42, 1, 43, 1),
    Sketcher.Constraint("Coincident", 43, 2, 44, 1),
    Sketcher.Constraint("Coincident", 44, 2, 45, 2),
    Sketcher.Constraint("Coincident", 45, 1, 46, 1),
    Sketcher.Constraint("Coincident", 46, 2, 47, 1),
    Sketcher.Constraint("Coincident", 47, 2, 32, 2),
    Sketcher.Constraint("Horizontal", 4),
    Sketcher.Constraint("Horizontal", 12),
    Sketcher.Constraint("Horizontal", 16),
    Sketcher.Constraint("Horizontal", 24),
    Sketcher.Constraint("Horizontal", 33),
    Sketcher.Constraint("Horizontal", 41),
    Sketcher.Constraint("Coincident", 8, 3, 0, 3),
    Sketcher.Constraint("Coincident", 28, 3, 20, 3),
    Sketcher.Constraint("Coincident", 45, 3, 37, 3),
    Sketcher.Constraint("Equal", 0, 8),
    Sketcher.Constraint("Equal", 3, 11),
    Sketcher.Constraint("Equal", 5, 13),
    Sketcher.Constraint("Equal", 13, 17),
    Sketcher.Constraint("Equal", 8, 20),
    Sketcher.Constraint("Equal", 11, 23),
    Sketcher.Constraint("Equal", 17, 25),
    Sketcher.Constraint("Equal", 20, 28),
    Sketcher.Constraint("Equal", 23, 31),
    Sketcher.Constraint("Equal", 31, 32),
    Sketcher.Constraint("Equal", 25, 34),
    Sketcher.Constraint("Equal", 28, 37),
    Sketcher.Constraint("Equal", 32, 40),
    Sketcher.Constraint("Equal", 34, 42),
    Sketcher.Constraint("Equal", 37, 45),
    Sketcher.Constraint("Parallel", 1, 2),
    Sketcher.Constraint("Parallel", 6, 7),
    Sketcher.Constraint("Parallel", 2, 9),
    Sketcher.Constraint("Parallel", 9, 10),
    Sketcher.Constraint("Parallel", 7, 14),
    Sketcher.Constraint("Parallel", 14, 15),
    Sketcher.Constraint("Parallel", 15, 18),
    Sketcher.Constraint("Parallel", 18, 19),
    Sketcher.Constraint("Parallel", 10, 21),
    Sketcher.Constraint("Parallel", 21, 22),
    Sketcher.Constraint("Parallel", 19, 26),
    Sketcher.Constraint("Parallel", 26, 27),
    Sketcher.Constraint("Parallel", 22, 29),
    Sketcher.Constraint("Parallel", 29, 30),
    Sketcher.Constraint("Parallel", 27, 35),
    Sketcher.Constraint("Parallel", 35, 36),
    Sketcher.Constraint("Parallel", 30, 38),
    Sketcher.Constraint("Parallel", 38, 39),
    Sketcher.Constraint("Parallel", 36, 43),
    Sketcher.Constraint("Parallel", 43, 44),
    Sketcher.Constraint("Parallel", 39, 46),
    Sketcher.Constraint("Parallel", 46, 47),
    Sketcher.Constraint("Horizontal", 5, 3, 11, 3),
    Sketcher.Constraint("Horizontal", 3, 3, 13, 3),
    Sketcher.Constraint("Horizontal", 17, 3, 23, 3),
    Sketcher.Constraint("Horizontal", 25, 3, 31, 3),
    Sketcher.Constraint("Horizontal", 31, 3, 32, 3),
    Sketcher.Constraint("Horizontal", 23, 3, 34, 3),
    Sketcher.Constraint("Horizontal", 28, 3, 37, 3),
    Sketcher.Constraint("Horizontal", 34, 3, 40, 3),
    Sketcher.Constraint("Horizontal", 32, 3, 42, 3),
    Sketcher.Constraint("Horizontal", 2, 2, 5, 1),
    Sketcher.Constraint("Horizontal", 1, 2, 6, 2),
    Sketcher.Constraint("Horizontal", 0, 1, 7, 2),
    Sketcher.Constraint("Horizontal", 10, 2, 13, 1),
    Sketcher.Constraint("Horizontal", 9, 2, 14, 2),
    Sketcher.Constraint("Horizontal", 8, 1, 15, 2),
    Sketcher.Constraint("Horizontal", 22, 2, 25, 1),
    Sketcher.Constraint("Horizontal", 21, 2, 26, 2),
    Sketcher.Constraint("Horizontal", 20, 1, 27, 2),
    Sketcher.Constraint("Horizontal", 19, 2, 28, 1),
    Sketcher.Constraint("Horizontal", 18, 2, 29, 2),
    Sketcher.Constraint("Horizontal", 17, 1, 30, 2),
    Sketcher.Constraint("Horizontal", 31, 1, 32, 1),
    Sketcher.Constraint("Horizontal", 30, 2, 34, 1),
    Sketcher.Constraint("Horizontal", 29, 2, 35, 2),
    Sketcher.Constraint("Horizontal", 28, 1, 36, 2),
    Sketcher.Constraint("Horizontal", 27, 2, 37, 1),
    Sketcher.Constraint("Horizontal", 26, 2, 38, 2),
    Sketcher.Constraint("Horizontal", 25, 1, 39, 2),
    Sketcher.Constraint("Horizontal", 24, 2, 40, 1),
    Sketcher.Constraint("Horizontal", 39, 2, 42, 1),
    Sketcher.Constraint("Horizontal", 38, 2, 43, 2),
    Sketcher.Constraint("Horizontal", 37, 1, 44, 2),
    Sketcher.Constraint("Horizontal", 36, 2, 45, 1),
    Sketcher.Constraint("Horizontal", 35, 2, 46, 2),
    Sketcher.Constraint("Horizontal", 34, 1, 47, 2),
    Sketcher.Constraint("Vertical", 3, 3, 5, 3),
    Sketcher.Constraint("Vertical", 11, 3, 13, 3),
    Sketcher.Constraint("Vertical", 23, 3, 25, 3),
    Sketcher.Constraint("Vertical", 17, 3, 31, 3),
    Sketcher.Constraint("Vertical", 7, 2, 8, 1),
    Sketcher.Constraint("Vertical", 6, 2, 9, 2),
    Sketcher.Constraint("Vertical", 5, 1, 10, 2),
    Sketcher.Constraint("Vertical", 4, 2, 11, 1),
    Sketcher.Constraint("Vertical", 3, 1, 12, 2),
    Sketcher.Constraint("Vertical", 2, 2, 13, 1),
    Sketcher.Constraint("Vertical", 19, 2, 20, 1),
    Sketcher.Constraint("Vertical", 18, 2, 21, 2),
    Sketcher.Constraint("Vertical", 17, 1, 22, 2),
    Sketcher.Constraint("Vertical", 16, 2, 23, 1),
    Sketcher.Constraint("Vertical", 24, 2, 31, 1),
    Sketcher.Constraint("Equal", 12, 16),
    Sketcher.Constraint("Equal", 1, 2),
    Sketcher.Constraint("Equal", 15, 18),
    Sketcher.Constraint("Equal", 18, 19),
    Sketcher.Constraint("Angle", 1, Q("-119.9988 deg")),
    Sketcher.Constraint("Radius", 0, 4.65),
    Sketcher.Constraint("DistanceX", -1, 1, 0, 3, 22.0),
    Sketcher.Constraint("DistanceY", -1, 1, 0, 3, 26.5),
    Sketcher.Constraint("DistanceX", -1, 1, 20, 3, 30.5),
    Sketcher.Constraint("DistanceY", 20, 3, -1, 1, 16.5),
    Sketcher.Constraint("DistanceX", -1, 1, 37, 3, 13.5),
    Sketcher.Constraint("Radius", 3, 4.6487),
    Sketcher.Constraint("Radius", 5, 4.6512),
    Sketcher.Constraint("DistanceX", -1, 1, 0, 1, 26.63),
    Sketcher.Constraint("DistanceX", 4, 2, 4, 1, 3.8842),
])
pocket8 = body.newObject("PartDesign::Pocket", "Pocket007")
pocket8.Profile = sketch13
pocket8.Length = 4
pocket8.Reversed = True

sketch14 = body.newObject("Sketcher::SketchObject", "Sketch013")
sketch14.AttachmentSupport = (doc.getObject("XZ_Plane"), [""])
sketch14.MapMode = "FlatFace"
sketch14.AttachmentOffset = App.Placement(Vector(0, 0, -21), App.Rotation())
add_polygon(sketch14, [(19.0507, -18.8481), (22, -16), (24.9493, -18.8481), (22, -21.9022)])
sketch14.addConstraint([
    Sketcher.Constraint("Perpendicular", 1, 2),
    Sketcher.Constraint("Perpendicular", 0, 3),
    Sketcher.Constraint("Horizontal", 1, 2, 3, 2),
    Sketcher.Constraint("Vertical", 0, 2, 2, 2),
    Sketcher.Constraint("Angle", 0, Q("44 deg")),
    Sketcher.Constraint("DistanceX", -1, 1, 0, 2, 22.0),
    Sketcher.Constraint("DistanceY", 0, 2, -1, 1, 16.0),
    Sketcher.Constraint("Distance", 0, 4.1),
])
pocket9 = body.newObject("PartDesign::Pocket", "Pocket008")
pocket9.Profile = sketch14
pocket9.Length = 30
pocket9.Reversed = True

sketch15 = body.newObject("Sketcher::SketchObject", "Sketch014")
sketch15.AttachmentSupport = (doc.getObject("XZ_Plane"), [""])
sketch15.MapMode = "FlatFace"
sketch15.AttachmentOffset = App.Placement(Vector(0, 0, 11), App.Rotation())
add_polygon(sketch15, [(44, 0), (52, -8), (52, 0)])
sketch15.addConstraint([
    Sketcher.Constraint("Vertical", 1),
    Sketcher.Constraint("Horizontal", 2),
    Sketcher.Constraint("PointOnObject", 1, 2, -1),
    Sketcher.Constraint("Equal", 2, 1),
    Sketcher.Constraint("DistanceX", 2, 2, 2, 1, 8.0),
    Sketcher.Constraint("DistanceX", -1, 1, 0, 2, 52.0),
])
pad6 = body.newObject("PartDesign::Pad", "Pad005")
pad6.Profile = sketch15
pad6.Length = 7

sketch16 = body.newObject("Sketcher::SketchObject", "Sketch015")
sketch16.AttachmentSupport = (doc.getObject("XZ_Plane"), [""])
sketch16.MapMode = "FlatFace"
sketch16.AttachmentOffset = App.Placement(Vector(0, 0, 11), App.Rotation())
add_polygon(sketch16, [(41.3, -0.4694), (44, 0), (41.3, 0)])
sketch16.addConstraint([
    Sketcher.Constraint("Horizontal", 1),
    Sketcher.Constraint("Vertical", 2),
    Sketcher.Constraint("PointOnObject", 0, 2, -1),
    Sketcher.Constraint("DistanceX", 1, 2, 1, 1, 2.7),
    Sketcher.Constraint("DistanceX", -1, 1, 0, 2, 44.0),
    Sketcher.Constraint("DistanceY", 2, 2, 2, 1, 0.4694),
])
pad7 = body.newObject("PartDesign::Pad", "Pad006")
pad7.Profile = sketch16
pad7.Length = 7
doc.recompute()

datumplane2 = body.newObject("PartDesign::Plane", "DatumPlane001")
datumplane2.AttachmentSupport = (doc.getObject("YZ_Plane"), [""])
datumplane2.MapMode = "FlatFace"
datumplane2.AttachmentOffset = App.Placement(Vector(0, 0, 22), App.Rotation())
mirrored2 = body.newObject("PartDesign::Mirrored", "Mirrored001")
mirrored2.Originals = [pad6, pad7]
mirrored2.MirrorPlane = (datumplane2, [""])
body.Tip = mirrored2

doc.recompute()
